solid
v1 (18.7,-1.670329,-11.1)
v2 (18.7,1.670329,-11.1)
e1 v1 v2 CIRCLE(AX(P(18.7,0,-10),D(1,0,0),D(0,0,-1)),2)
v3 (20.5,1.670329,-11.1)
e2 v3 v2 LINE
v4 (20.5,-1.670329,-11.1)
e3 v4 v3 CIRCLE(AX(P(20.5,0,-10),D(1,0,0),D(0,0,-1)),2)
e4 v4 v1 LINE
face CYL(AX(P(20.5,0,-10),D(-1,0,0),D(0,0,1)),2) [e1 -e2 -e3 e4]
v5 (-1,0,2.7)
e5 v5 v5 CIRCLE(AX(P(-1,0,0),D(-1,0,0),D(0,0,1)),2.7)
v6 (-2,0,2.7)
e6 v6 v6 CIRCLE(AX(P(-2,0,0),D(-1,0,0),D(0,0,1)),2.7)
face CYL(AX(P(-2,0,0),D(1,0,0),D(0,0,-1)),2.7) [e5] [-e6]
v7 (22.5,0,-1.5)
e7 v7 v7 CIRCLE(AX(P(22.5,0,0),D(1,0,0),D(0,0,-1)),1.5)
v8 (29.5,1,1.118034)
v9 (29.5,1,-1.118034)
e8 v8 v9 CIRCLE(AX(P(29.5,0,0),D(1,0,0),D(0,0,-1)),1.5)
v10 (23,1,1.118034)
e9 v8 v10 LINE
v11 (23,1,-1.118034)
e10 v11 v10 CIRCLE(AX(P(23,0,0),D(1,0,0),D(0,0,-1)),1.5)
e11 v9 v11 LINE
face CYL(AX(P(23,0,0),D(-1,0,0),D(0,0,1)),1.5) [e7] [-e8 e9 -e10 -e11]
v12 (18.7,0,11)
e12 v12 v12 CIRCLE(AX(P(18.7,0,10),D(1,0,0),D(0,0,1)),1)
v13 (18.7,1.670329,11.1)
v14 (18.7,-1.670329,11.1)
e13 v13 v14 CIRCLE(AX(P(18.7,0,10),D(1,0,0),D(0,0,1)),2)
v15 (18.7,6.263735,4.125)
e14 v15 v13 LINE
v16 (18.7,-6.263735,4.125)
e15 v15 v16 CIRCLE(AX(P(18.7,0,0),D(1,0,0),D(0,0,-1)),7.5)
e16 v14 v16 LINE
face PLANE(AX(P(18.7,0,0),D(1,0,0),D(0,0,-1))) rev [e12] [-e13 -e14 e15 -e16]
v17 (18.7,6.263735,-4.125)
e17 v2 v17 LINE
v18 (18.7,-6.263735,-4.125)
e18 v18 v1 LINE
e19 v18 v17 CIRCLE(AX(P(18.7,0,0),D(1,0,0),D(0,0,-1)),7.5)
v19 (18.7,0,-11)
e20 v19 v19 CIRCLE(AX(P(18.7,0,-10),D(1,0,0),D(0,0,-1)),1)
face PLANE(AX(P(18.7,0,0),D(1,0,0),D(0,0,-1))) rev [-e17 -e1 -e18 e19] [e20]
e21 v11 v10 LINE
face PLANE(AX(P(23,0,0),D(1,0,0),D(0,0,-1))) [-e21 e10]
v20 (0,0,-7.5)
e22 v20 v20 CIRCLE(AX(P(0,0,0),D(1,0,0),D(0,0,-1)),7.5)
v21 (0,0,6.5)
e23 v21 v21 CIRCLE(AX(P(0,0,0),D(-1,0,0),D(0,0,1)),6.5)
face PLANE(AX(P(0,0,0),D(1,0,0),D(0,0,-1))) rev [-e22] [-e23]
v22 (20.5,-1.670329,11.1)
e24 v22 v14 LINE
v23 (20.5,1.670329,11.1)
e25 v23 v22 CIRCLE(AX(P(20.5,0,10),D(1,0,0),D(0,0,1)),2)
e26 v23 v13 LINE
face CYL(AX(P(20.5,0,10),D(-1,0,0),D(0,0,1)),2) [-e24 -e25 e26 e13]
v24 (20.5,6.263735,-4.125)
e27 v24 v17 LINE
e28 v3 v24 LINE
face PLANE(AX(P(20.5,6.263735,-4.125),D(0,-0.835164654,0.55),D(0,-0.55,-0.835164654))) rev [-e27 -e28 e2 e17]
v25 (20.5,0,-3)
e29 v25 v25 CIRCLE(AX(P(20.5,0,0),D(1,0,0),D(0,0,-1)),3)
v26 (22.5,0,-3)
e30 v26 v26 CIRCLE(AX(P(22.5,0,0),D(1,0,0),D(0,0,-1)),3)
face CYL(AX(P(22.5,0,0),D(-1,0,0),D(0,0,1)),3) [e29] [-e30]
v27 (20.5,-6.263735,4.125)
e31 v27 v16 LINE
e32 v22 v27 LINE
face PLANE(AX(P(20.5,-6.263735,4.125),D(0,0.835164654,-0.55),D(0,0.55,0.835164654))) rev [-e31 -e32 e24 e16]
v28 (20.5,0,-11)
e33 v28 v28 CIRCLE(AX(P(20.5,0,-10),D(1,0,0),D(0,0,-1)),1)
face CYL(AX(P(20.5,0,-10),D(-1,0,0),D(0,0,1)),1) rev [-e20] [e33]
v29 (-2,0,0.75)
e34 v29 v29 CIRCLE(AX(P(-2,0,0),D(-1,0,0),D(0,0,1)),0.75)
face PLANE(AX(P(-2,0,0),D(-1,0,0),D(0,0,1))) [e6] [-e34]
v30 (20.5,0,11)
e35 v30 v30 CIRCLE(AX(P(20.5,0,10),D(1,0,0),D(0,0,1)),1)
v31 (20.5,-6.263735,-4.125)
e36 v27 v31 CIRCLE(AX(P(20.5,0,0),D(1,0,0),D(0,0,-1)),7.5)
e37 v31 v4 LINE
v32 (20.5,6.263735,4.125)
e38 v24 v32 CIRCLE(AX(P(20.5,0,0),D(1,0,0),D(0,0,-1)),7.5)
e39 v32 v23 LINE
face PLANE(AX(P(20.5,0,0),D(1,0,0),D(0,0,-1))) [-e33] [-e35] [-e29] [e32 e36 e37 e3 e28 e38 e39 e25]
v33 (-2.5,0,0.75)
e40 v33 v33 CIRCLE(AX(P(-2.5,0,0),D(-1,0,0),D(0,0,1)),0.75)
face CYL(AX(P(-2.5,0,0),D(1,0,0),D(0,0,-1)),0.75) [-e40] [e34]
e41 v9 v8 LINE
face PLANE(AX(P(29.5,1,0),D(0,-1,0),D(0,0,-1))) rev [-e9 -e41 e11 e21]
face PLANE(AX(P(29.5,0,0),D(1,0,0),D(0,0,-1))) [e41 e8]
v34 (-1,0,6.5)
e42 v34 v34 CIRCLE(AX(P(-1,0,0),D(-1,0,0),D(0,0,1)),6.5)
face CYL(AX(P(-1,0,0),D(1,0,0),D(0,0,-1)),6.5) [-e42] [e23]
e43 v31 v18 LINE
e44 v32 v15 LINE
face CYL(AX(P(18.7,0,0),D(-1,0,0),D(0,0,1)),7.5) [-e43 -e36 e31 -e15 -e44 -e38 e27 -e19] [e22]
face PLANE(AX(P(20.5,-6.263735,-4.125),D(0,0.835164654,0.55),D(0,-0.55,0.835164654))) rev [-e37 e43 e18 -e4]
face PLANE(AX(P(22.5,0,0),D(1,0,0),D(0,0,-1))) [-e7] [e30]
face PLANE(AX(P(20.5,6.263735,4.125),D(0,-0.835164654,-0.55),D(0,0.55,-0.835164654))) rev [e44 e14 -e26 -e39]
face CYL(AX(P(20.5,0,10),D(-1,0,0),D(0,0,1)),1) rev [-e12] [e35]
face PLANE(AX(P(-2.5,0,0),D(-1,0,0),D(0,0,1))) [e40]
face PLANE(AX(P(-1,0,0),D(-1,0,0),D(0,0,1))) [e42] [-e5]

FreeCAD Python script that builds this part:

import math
import FreeCAD as App
import Part
import Sketcher

V = App.Vector

doc = App.newDocument("Part")
body = doc.addObject("PartDesign::Body", "Body")

# Sketch on YZ plane
sketch1 = body.newObject("Sketcher::SketchObject", "Sketch")
sketch1.AttachmentSupport = (doc.getObject("YZ_Plane"), [""])
sketch1.MapMode = "FlatFace"
sketch1.addGeometry(Part.Circle(V(0, 0, 0), V(0, 0, 1), 8), False)
sketch1.addConstraint([
    Sketcher.Constraint("Coincident", 0, 3, -1, 1),
    Sketcher.Constraint("Diameter", 0, 15.0),
])
pad1 = body.newObject("PartDesign::Pad", "Pad")
pad1.Profile = sketch1
pad1.Length = 18.7

# Sketch on YZ plane
sketch2 = body.newObject("Sketcher::SketchObject", "Sketch001")
sketch2.AttachmentSupport = (doc.getObject("YZ_Plane"), [""])
sketch2.MapMode = "FlatFace"
sketch2.AttachmentOffset = App.Placement(V(0, 0, 18.7), App.Rotation())
sketch2.addGeometry([
    Part.LineSegment(V(1.7, -11.1, 0), V(6.3, -4.1, 0)),  # 0
    Part.ArcOfCircle(Part.Circle(V(0, 0, 0), V(0, 0, 1), 7.5), math.radians(-33), math.radians(33)),  # 1
    Part.LineSegment(V(6.3, 4.1, 0), V(1.7, 11.1, 0)),  # 2
    Part.ArcOfCircle(Part.Circle(V(0, 10, 0), V(0, 0, 1), 2), math.radians(33), math.radians(147)),  # 3
    Part.LineSegment(V(-1.7, 11.1, 0), V(-6.3, 4.1, 0)),  # 4
    Part.ArcOfCircle(Part.Circle(V(0, 0, 0), V(0, 0, 1), 7.5), math.radians(147), math.radians(213)),  # 5
    Part.LineSegment(V(-6.3, -4.1, 0), V(-1.7, -11.1, 0)),  # 6
    Part.ArcOfCircle(Part.Circle(V(0, -10, 0), V(0, 0, 1), 2), math.radians(-147), math.radians(-33)),  # 7
    Part.Circle(V(0, -10, 0), V(0, 0, 1), 1),  # 8
    Part.Circle(V(0, 10, 0), V(0, 0, 1), 1),  # 9
], False)
sketch2.addConstraint([
    Sketcher.Constraint("Tangent", 0, 2, 1, 1),
    Sketcher.Constraint("Tangent", 1, 2, 2, 1),
    Sketcher.Constraint("Tangent", 2, 2, 3, 1),
    Sketcher.Constraint("Tangent", 3, 2, 4, 1),
    Sketcher.Constraint("Tangent", 4, 2, 5, 1),
    Sketcher.Constraint("Tangent", 5, 2, 6, 1),
    Sketcher.Constraint("Tangent", 6, 2, 7, 1),
    Sketcher.Constraint("Tangent", 7, 2, 0, 1),
    Sketcher.Constraint("Coincident", 1, 3, -1, 1),
    Sketcher.Constraint("Coincident", 5, 3, -1, 1),
    Sketcher.Constraint("Coincident", 8, 3, 7, 3),
    Sketcher.Constraint("Coincident", 9, 3, 3, 3),
    Sketcher.Constraint("Equal", 1, 5),
    Sketcher.Constraint("Equal", 3, 7),
    Sketcher.Constraint("Equal", 8, 9),
    Sketcher.Constraint("Symmetric", 3, 3, 7, 3, -1, 1),
    Sketcher.Constraint("PointOnObject", 3, 3, -2),
    Sketcher.Constraint("Diameter", 8, 2.0),
    Sketcher.Constraint("Radius", 3, 2.0),
    Sketcher.Constraint("Radius", 1, 7.5),
    Sketcher.Constraint("DistanceY", -1, 1, 3, 3, 10.0),
])
pad2 = body.newObject("PartDesign::Pad", "Pad001")
pad2.Profile = sketch2
pad2.Length = 1.8

# Sketch on YZ plane
sketch3 = body.newObject("Sketcher::SketchObject", "Sketch002")
sketch3.AttachmentSupport = (doc.getObject("YZ_Plane"), [""])
sketch3.MapMode = "FlatFace"
sketch3.addGeometry(Part.Circle(V(0, 0, 0), V(0, 0, 1), 6), False)
sketch3.addConstraint([
    Sketcher.Constraint("Coincident", 0, 3, -1, 1),
    Sketcher.Constraint("Diameter", 0, 13.0),
])
pad3 = body.newObject("PartDesign::Pad", "Pad002")
pad3.Profile = sketch3
pad3.Length = 1
pad3.Reversed = True

# Sketch on YZ plane
sketch4 = body.newObject("Sketcher::SketchObject", "Sketch003")
sketch4.AttachmentSupport = (doc.getObject("YZ_Plane"), [""])
sketch4.MapMode = "FlatFace"
sketch4.AttachmentOffset = App.Placement(V(0, 0, -1), App.Rotation())
sketch4.addGeometry(Part.Circle(V(0, 0, 0), V(0, 0, 1), 2.7), False)
sketch4.addConstraint([
    Sketcher.Constraint("Coincident", 0, 3, -1, 1),
    Sketcher.Constraint("Diameter", 0, 5.4),
])
pad4 = body.newObject("PartDesign::Pad", "Pad003")
pad4.Profile = sketch4
pad4.Length = 1
pad4.Reversed = True

# Sketch on YZ plane
sketch5 = body.newObject("Sketcher::SketchObject", "Sketch004")
sketch5.AttachmentSupport = (doc.getObject("YZ_Plane"), [""])
sketch5.MapMode = "FlatFace"
sketch5.AttachmentOffset = App.Placement(V(0, 0, -2), App.Rotation())
sketch5.addGeometry(Part.Circle(V(0, 0, 0), V(0, 0, 1), 0.8), False)
sketch5.addConstraint([
    Sketcher.Constraint("Coincident", 0, 3, -1, 1),
    Sketcher.Constraint("Diameter", 0, 1.5),
])
pad5 = body.newObject("PartDesign::Pad", "Pad004")
pad5.Profile = sketch5
pad5.Length = 0.5
pad5.Reversed = True

# Sketch on YZ plane
sketch6 = body.newObject("Sketcher::SketchObject", "Sketch005")
sketch6.AttachmentSupport = (doc.getObject("YZ_Plane"), [""])
sketch6.MapMode = "FlatFace"
sketch6.AttachmentOffset = App.Placement(V(0, 0, 20.5), App.Rotation())
sketch6.addGeometry(Part.Circle(V(0, 0, 0), V(0, 0, 1), 3), False)
sketch6.addConstraint([
    Sketcher.Constraint("Coincident", 0, 3, -1, 1),
    Sketcher.Constraint("Diameter", 0, 6.0),
])
pad6 = body.newObject("PartDesign::Pad", "Pad005")
pad6.Profile = sketch6
pad6.Length = 2

# Sketch on YZ plane
sketch7 = body.newObject("Sketcher::SketchObject", "Sketch006")
sketch7.AttachmentSupport = (doc.getObject("YZ_Plane"), [""])
sketch7.MapMode = "FlatFace"
sketch7.AttachmentOffset = App.Placement(V(0, 0, 22.5), App.Rotation())
sketch7.addGeometry(Part.Circle(V(0, 0, 0), V(0, 0, 1), 1.5), False)
sketch7.addConstraint([
    Sketcher.Constraint("Coincident", 0, 3, -1, 1),
    Sketcher.Constraint("Diameter", 0, 3.0),
])
pad7 = body.newObject("PartDesign::Pad", "Pad006")
pad7.Profile = sketch7
pad7.Length = 0.5

# Sketch on YZ plane
sketch8 = body.newObject("Sketcher::SketchObject", "Sketch007")
sketch8.AttachmentSupport = (doc.getObject("YZ_Plane"), [""])
sketch8.MapMode = "FlatFace"
sketch8.AttachmentOffset = App.Placement(V(0, 0, 23), App.Rotation())
sketch8.addGeometry([
    Part.ArcOfCircle(Part.Circle(V(0, 0, 0), V(0, 0, 1), 1.5), math.radians(48), math.radians(312)),
    Part.LineSegment(V(1, -1.1, 0), V(1, 1.1, 0)),
], False)
sketch8.addConstraint([
    Sketcher.Constraint("Coincident", 0, 1, 1, 2),
    Sketcher.Constraint("Coincident", 1, 1, 0, 2),
    Sketcher.Constraint("Vertical", 1),
    Sketcher.Constraint("Coincident", 0, 3, -1, 1),
    Sketcher.Constraint("Radius", 0, 1.5),
    Sketcher.Constraint("DistanceX", -1, 1, 0, 1, 1.0),
])
pad8 = body.newObject("PartDesign::Pad", "Pad007")
pad8.Profile = sketch8
pad8.Length = 6.5

doc.recompute()
